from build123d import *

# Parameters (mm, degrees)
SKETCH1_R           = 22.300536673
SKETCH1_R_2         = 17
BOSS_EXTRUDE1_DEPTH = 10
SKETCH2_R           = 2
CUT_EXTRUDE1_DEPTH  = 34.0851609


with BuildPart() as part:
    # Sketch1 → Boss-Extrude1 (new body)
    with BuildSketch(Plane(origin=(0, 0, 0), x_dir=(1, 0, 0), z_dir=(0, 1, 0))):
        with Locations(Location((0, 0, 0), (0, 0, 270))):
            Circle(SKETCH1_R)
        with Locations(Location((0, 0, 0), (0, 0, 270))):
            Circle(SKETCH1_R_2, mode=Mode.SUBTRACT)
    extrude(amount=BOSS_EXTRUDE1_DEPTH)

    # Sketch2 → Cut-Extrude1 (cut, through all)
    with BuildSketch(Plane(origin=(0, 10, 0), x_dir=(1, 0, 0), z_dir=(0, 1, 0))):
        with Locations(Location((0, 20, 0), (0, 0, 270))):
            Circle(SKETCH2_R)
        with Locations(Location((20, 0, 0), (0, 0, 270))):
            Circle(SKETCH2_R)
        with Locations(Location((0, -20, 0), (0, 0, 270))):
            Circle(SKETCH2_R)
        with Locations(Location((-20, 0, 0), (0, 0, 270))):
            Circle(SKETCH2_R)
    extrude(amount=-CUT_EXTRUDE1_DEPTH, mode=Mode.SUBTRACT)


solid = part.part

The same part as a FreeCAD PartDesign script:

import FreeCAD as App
import Part
import Sketcher
from FreeCAD import Vector

doc = App.newDocument("Part")
body = doc.addObject("PartDesign::Body", "Body")

# Sketch on XZ plane
sketch1 = body.newObject("Sketcher::SketchObject", "Sketch")
sketch1.AttachmentSupport = (doc.getObject("XZ_Plane"), [""])
sketch1.MapMode = "FlatFace"
sketch1.addGeometry(Part.Circle(Vector(0, 0, 0), Vector(0, 0, 1), 22.300537), False)
sketch1.addGeometry(Part.Circle(Vector(0, 0, 0), Vector(0, 0, 1), 17), False)
sketch1.addConstraint(Sketcher.Constraint("Coincident", 0, 3, -1, 1))
sketch1.addConstraint(Sketcher.Constraint("Coincident", 1, 3, -1, 1))
sketch1.addConstraint(Sketcher.Constraint("Diameter", 1, 34.0))
sketch1.addConstraint(Sketcher.Constraint("Diameter", 0, 44.601073))
pad1 = body.newObject("PartDesign::Pad", "Pad")
pad1.Profile = sketch1
pad1.Length = 10
pad1.Reversed = True

# Sketch on XZ plane
sketch2 = body.newObject("Sketcher::SketchObject", "Sketch001")
sketch2.AttachmentSupport = (doc.getObject("XZ_Plane"), [""])
sketch2.MapMode = "FlatFace"
sketch2.AttachmentOffset = App.Placement(Vector(0, 0, -10), App.Rotation())
sketch2.addGeometry(Part.Circle(Vector(0, -20, 0), Vector(0, 0, 1), 2), False)
sketch2.addGeometry(Part.Circle(Vector(20, 0, 0), Vector(0, 0, 1), 2), False)
sketch2.addGeometry(Part.Circle(Vector(0, 20, 0), Vector(0, 0, 1), 2), False)
sketch2.addGeometry(Part.Circle(Vector(-20, 0, 0), Vector(0, 0, 1), 2), False)
sketch2.addConstraint(Sketcher.Constraint("Equal", 0, 1))
sketch2.addConstraint(Sketcher.Constraint("Equal", 1, 2))
sketch2.addConstraint(Sketcher.Constraint("Equal", 2, 3))
sketch2.addConstraint(Sketcher.Constraint("Symmetric", 0, 3, 2, 3, -1, 1))
sketch2.addConstraint(Sketcher.Constraint("Symmetric", 1, 3, 3, 3, -1, 1))
sketch2.addConstraint(Sketcher.Constraint("PointOnObject", 0, 3, -2))
sketch2.addConstraint(Sketcher.Constraint("PointOnObject", 1, 3, -1))
sketch2.addConstraint(Sketcher.Constraint("Diameter", 0, 4.0))
sketch2.addConstraint(Sketcher.Constraint("DistanceY", 0, 3, -1, 1, 20.0))
sketch2.addConstraint(Sketcher.Constraint("DistanceX", -1, 1, 1, 3, 20.0))
pocket1 = body.newObject("PartDesign::Pocket", "Pocket")
pocket1.Profile = sketch2
pocket1.Type = "ThroughAll"
pocket1.Reversed = True

doc.recompute()
